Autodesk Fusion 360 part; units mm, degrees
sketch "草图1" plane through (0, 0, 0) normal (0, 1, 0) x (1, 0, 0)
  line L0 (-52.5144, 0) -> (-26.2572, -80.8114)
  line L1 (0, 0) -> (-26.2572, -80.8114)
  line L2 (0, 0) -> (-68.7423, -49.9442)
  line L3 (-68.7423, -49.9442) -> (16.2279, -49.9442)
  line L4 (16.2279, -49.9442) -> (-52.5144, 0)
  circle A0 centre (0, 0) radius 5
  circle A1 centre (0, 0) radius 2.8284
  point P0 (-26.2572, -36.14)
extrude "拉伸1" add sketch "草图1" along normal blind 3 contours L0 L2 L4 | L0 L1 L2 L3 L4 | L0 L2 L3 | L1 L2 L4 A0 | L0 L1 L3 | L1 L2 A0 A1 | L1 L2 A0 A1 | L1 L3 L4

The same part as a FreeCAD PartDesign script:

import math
import FreeCAD as App
import Part
import Sketcher
Q = App.Units.Quantity

doc = App.newDocument("Part")
body = doc.addObject("PartDesign::Body", "Body")

# Sketch on XZ plane
sketch1 = body.newObject("Sketcher::SketchObject", "Sketch")
sketch1.AttachmentSupport = (doc.getObject("XZ_Plane"), [""])
sketch1.MapMode = "FlatFace"
sketch1.addGeometry(Part.LineSegment(App.Vector(-26.3, 19.1, 0), App.Vector(-52.5, 0, 0)), False)
sketch1.addGeometry(Part.LineSegment(App.Vector(-52.5, 0, 0), App.Vector(-42.5, 30.9, 0)), False)
sketch1.addGeometry(Part.LineSegment(App.Vector(-42.5, 30.9, 0), App.Vector(-68.7, 49.9, 0)), False)
sketch1.addGeometry(Part.LineSegment(App.Vector(-68.7, 49.9, 0), App.Vector(-36.3, 49.9, 0)), False)
sketch1.addGeometry(Part.LineSegment(App.Vector(-36.3, 49.9, 0), App.Vector(-26.3, 80.8, 0)), False)
sketch1.addGeometry(Part.LineSegment(App.Vector(-26.3, 80.8, 0), App.Vector(-16.2, 49.9, 0)), False)
sketch1.addGeometry(Part.LineSegment(App.Vector(-16.2, 49.9, 0), App.Vector(16.2, 49.9, 0)), False)
sketch1.addGeometry(Part.LineSegment(App.Vector(16.2, 49.9, 0), App.Vector(-10, 30.9, 0)), False)
sketch1.addGeometry(Part.LineSegment(App.Vector(-10, 30.9, 0), App.Vector(-1.5, 4.8, 0)), False)
sketch1.addGeometry(Part.ArcOfCircle(Part.Circle(App.Vector(0, 0, 0), App.Vector(0, 0, 1), 5), math.radians(144), math.radians(468)), False)
sketch1.addGeometry(Part.LineSegment(App.Vector(-4, 2.9, 0), App.Vector(-26.3, 19.1, 0)), False)
sketch1.addGeometry(Part.Circle(App.Vector(0, 0, 0), App.Vector(0, 0, 1), 2.8), False)
sketch1.addConstraint(Sketcher.Constraint("Coincident", 0, 2, 1, 1))
sketch1.addConstraint(Sketcher.Constraint("Coincident", 1, 2, 2, 1))
sketch1.addConstraint(Sketcher.Constraint("Coincident", 2, 2, 3, 1))
sketch1.addConstraint(Sketcher.Constraint("Coincident", 3, 2, 4, 1))
sketch1.addConstraint(Sketcher.Constraint("Coincident", 4, 2, 5, 1))
sketch1.addConstraint(Sketcher.Constraint("Coincident", 5, 2, 6, 1))
sketch1.addConstraint(Sketcher.Constraint("Coincident", 6, 2, 7, 1))
sketch1.addConstraint(Sketcher.Constraint("Coincident", 7, 2, 8, 1))
sketch1.addConstraint(Sketcher.Constraint("Coincident", 8, 2, 9, 2))
sketch1.addConstraint(Sketcher.Constraint("Coincident", 9, 1, 10, 1))
sketch1.addConstraint(Sketcher.Constraint("Coincident", 10, 2, 0, 1))
sketch1.addConstraint(Sketcher.Constraint("Horizontal", 3))
sketch1.addConstraint(Sketcher.Constraint("Horizontal", 6))
sketch1.addConstraint(Sketcher.Constraint("Coincident", 9, 3, -1, 1))
sketch1.addConstraint(Sketcher.Constraint("Coincident", 11, 3, -1, 1))
sketch1.addConstraint(Sketcher.Constraint("PointOnObject", 0, 2, -1))
sketch1.addConstraint(Sketcher.Constraint("Parallel", 1, 4))
sketch1.addConstraint(Sketcher.Constraint("Parallel", 0, 7))
sketch1.addConstraint(Sketcher.Constraint("Parallel", 5, 8))
sketch1.addConstraint(Sketcher.Constraint("Parallel", 2, 10))
sketch1.addConstraint(Sketcher.Constraint("Horizontal", 3, 2, 5, 2))
sketch1.addConstraint(Sketcher.Constraint("Horizontal", 1, 2, 7, 2))
sketch1.addConstraint(Sketcher.Constraint("Vertical", 4, 2, 10, 2))
sketch1.addConstraint(Sketcher.Constraint("Equal", 3, 6))
sketch1.addConstraint(Sketcher.Constraint("Equal", 0, 1))
sketch1.addConstraint(Sketcher.Constraint("Equal", 1, 2))
sketch1.addConstraint(Sketcher.Constraint("Equal", 2, 4))
sketch1.addConstraint(Sketcher.Constraint("Equal", 4, 5))
sketch1.addConstraint(Sketcher.Constraint("Equal", 5, 7))
sketch1.addConstraint(Sketcher.Constraint("Equal", 8, 10))
sketch1.addConstraint(Sketcher.Constraint("Radius", 9, Q("5 mm")))
sketch1.addConstraint(Sketcher.Constraint("Angle", 0, Q("-144 deg")))
sketch1.addConstraint(Sketcher.Constraint("Angle", 1, Q("72 deg")))
sketch1.addConstraint(Sketcher.Constraint("Diameter", 11, Q("5.6568 mm")))
sketch1.addConstraint(Sketcher.Constraint("DistanceX", 1, 2, 8, 2, Q("40.94 mm")))
pad1 = body.newObject("PartDesign::Pad", "Pad")
pad1.Profile = sketch1
pad1.Length = 3
pad1.Reversed = True

doc.recompute()
